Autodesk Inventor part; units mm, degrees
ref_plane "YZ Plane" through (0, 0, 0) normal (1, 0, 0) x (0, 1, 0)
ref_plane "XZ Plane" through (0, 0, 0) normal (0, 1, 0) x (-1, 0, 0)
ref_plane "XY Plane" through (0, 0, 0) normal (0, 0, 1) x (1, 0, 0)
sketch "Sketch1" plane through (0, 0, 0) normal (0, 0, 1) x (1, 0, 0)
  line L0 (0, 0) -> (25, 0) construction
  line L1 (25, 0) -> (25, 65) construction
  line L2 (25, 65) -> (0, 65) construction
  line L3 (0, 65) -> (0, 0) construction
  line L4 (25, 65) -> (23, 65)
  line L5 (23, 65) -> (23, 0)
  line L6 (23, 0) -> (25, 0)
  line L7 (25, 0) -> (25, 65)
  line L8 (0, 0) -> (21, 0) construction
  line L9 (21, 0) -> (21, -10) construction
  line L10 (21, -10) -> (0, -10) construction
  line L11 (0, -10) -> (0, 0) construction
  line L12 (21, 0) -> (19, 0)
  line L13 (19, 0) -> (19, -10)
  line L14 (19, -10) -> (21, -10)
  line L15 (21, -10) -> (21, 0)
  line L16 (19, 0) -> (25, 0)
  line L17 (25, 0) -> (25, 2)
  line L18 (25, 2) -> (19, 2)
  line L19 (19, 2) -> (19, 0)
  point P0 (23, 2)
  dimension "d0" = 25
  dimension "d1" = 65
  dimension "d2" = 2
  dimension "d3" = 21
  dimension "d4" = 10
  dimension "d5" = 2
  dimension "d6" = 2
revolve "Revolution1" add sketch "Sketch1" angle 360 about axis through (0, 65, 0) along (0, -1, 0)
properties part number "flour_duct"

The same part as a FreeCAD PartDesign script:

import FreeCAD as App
import Part
import Sketcher

V = App.Vector

doc = App.newDocument("Part")
params = doc.addObject("Spreadsheet::Sheet", "Params")
for row, (alias, value) in enumerate([
    ("sketch1_width", "2 mm"),
    ("sketch1_height", "10 mm"),
    ("sketch1_height2", "65 mm"),
    ("revolution_angle", "360 deg"),
], start=1):
    params.set(f"A{row}", alias)
    params.set(f"B{row}", "=" + value)
    params.setAlias(f"B{row}", alias)

body = doc.addObject("PartDesign::Body", "Body")

sketch1 = doc.addObject("Sketcher::SketchObject", "Sketch")
body.addObject(sketch1)
sketch1.AttachmentSupport = (doc.XY_Plane, [""])
sketch1.MapMode = "FlatFace"
sketch1.addGeometry([
    Part.LineSegment(V(25, 65, 0), V(23, 65, 0)),
    Part.LineSegment(V(23, 65, 0), V(23, 2, 0)),
    Part.LineSegment(V(23, 2, 0), V(19, 2, 0)),
    Part.LineSegment(V(19, 2, 0), V(19, -10, 0)),
    Part.LineSegment(V(19, -10, 0), V(21, -10, 0)),
    Part.LineSegment(V(21, -10, 0), V(21, 0, 0)),
    Part.LineSegment(V(21, 0, 0), V(25, 0, 0)),
    Part.LineSegment(V(25, 0, 0), V(25, 65, 0)),
], False)
sketch1.addConstraint([
    Sketcher.Constraint("Coincident", 0, 2, 1, 1),
    Sketcher.Constraint("Coincident", 1, 2, 2, 1),
    Sketcher.Constraint("Coincident", 2, 2, 3, 1),
    Sketcher.Constraint("Coincident", 3, 2, 4, 1),
    Sketcher.Constraint("Coincident", 4, 2, 5, 1),
    Sketcher.Constraint("Coincident", 5, 2, 6, 1),
    Sketcher.Constraint("Coincident", 6, 2, 7, 1),
    Sketcher.Constraint("Coincident", 7, 2, 0, 1),
    Sketcher.Constraint("Horizontal", 0),
    Sketcher.Constraint("Vertical", 1),
    Sketcher.Constraint("Horizontal", 2),
    Sketcher.Constraint("Vertical", 3),
    Sketcher.Constraint("Horizontal", 4),
    Sketcher.Constraint("Vertical", 5),
    Sketcher.Constraint("Horizontal", 6),
    Sketcher.Constraint("Vertical", 7),
    Sketcher.Constraint("PointOnObject", 5, 2, -1),
    Sketcher.Constraint("Equal", 0, 4),
    Sketcher.Constraint("DistanceX", 0, 2, 0, 1, 2.0),
    Sketcher.Constraint("DistanceY", 5, 1, 5, 2, 10.0),
    Sketcher.Constraint("DistanceY", 7, 1, 7, 2, 65.0),
    Sketcher.Constraint("DistanceY", -1, 1, 1, 2, 2.0),
    Sketcher.Constraint("DistanceX", -1, 1, 4, 2, 21.0),
    Sketcher.Constraint("DistanceX", -1, 1, 6, 2, 25.0),
])
sketch1.setExpression("Constraints[18]", "Params.sketch1_width")
sketch1.setExpression("Constraints[19]", "Params.sketch1_height")
sketch1.setExpression("Constraints[20]", "Params.sketch1_height2")
revolution = doc.addObject("PartDesign::Revolution", "Revolution")
body.addObject(revolution)
revolution.Profile = sketch1
revolution.ReferenceAxis = (sketch1, ["V_Axis"])
revolution.setExpression("Angle", "Params.revolution_angle")

doc.recompute()
